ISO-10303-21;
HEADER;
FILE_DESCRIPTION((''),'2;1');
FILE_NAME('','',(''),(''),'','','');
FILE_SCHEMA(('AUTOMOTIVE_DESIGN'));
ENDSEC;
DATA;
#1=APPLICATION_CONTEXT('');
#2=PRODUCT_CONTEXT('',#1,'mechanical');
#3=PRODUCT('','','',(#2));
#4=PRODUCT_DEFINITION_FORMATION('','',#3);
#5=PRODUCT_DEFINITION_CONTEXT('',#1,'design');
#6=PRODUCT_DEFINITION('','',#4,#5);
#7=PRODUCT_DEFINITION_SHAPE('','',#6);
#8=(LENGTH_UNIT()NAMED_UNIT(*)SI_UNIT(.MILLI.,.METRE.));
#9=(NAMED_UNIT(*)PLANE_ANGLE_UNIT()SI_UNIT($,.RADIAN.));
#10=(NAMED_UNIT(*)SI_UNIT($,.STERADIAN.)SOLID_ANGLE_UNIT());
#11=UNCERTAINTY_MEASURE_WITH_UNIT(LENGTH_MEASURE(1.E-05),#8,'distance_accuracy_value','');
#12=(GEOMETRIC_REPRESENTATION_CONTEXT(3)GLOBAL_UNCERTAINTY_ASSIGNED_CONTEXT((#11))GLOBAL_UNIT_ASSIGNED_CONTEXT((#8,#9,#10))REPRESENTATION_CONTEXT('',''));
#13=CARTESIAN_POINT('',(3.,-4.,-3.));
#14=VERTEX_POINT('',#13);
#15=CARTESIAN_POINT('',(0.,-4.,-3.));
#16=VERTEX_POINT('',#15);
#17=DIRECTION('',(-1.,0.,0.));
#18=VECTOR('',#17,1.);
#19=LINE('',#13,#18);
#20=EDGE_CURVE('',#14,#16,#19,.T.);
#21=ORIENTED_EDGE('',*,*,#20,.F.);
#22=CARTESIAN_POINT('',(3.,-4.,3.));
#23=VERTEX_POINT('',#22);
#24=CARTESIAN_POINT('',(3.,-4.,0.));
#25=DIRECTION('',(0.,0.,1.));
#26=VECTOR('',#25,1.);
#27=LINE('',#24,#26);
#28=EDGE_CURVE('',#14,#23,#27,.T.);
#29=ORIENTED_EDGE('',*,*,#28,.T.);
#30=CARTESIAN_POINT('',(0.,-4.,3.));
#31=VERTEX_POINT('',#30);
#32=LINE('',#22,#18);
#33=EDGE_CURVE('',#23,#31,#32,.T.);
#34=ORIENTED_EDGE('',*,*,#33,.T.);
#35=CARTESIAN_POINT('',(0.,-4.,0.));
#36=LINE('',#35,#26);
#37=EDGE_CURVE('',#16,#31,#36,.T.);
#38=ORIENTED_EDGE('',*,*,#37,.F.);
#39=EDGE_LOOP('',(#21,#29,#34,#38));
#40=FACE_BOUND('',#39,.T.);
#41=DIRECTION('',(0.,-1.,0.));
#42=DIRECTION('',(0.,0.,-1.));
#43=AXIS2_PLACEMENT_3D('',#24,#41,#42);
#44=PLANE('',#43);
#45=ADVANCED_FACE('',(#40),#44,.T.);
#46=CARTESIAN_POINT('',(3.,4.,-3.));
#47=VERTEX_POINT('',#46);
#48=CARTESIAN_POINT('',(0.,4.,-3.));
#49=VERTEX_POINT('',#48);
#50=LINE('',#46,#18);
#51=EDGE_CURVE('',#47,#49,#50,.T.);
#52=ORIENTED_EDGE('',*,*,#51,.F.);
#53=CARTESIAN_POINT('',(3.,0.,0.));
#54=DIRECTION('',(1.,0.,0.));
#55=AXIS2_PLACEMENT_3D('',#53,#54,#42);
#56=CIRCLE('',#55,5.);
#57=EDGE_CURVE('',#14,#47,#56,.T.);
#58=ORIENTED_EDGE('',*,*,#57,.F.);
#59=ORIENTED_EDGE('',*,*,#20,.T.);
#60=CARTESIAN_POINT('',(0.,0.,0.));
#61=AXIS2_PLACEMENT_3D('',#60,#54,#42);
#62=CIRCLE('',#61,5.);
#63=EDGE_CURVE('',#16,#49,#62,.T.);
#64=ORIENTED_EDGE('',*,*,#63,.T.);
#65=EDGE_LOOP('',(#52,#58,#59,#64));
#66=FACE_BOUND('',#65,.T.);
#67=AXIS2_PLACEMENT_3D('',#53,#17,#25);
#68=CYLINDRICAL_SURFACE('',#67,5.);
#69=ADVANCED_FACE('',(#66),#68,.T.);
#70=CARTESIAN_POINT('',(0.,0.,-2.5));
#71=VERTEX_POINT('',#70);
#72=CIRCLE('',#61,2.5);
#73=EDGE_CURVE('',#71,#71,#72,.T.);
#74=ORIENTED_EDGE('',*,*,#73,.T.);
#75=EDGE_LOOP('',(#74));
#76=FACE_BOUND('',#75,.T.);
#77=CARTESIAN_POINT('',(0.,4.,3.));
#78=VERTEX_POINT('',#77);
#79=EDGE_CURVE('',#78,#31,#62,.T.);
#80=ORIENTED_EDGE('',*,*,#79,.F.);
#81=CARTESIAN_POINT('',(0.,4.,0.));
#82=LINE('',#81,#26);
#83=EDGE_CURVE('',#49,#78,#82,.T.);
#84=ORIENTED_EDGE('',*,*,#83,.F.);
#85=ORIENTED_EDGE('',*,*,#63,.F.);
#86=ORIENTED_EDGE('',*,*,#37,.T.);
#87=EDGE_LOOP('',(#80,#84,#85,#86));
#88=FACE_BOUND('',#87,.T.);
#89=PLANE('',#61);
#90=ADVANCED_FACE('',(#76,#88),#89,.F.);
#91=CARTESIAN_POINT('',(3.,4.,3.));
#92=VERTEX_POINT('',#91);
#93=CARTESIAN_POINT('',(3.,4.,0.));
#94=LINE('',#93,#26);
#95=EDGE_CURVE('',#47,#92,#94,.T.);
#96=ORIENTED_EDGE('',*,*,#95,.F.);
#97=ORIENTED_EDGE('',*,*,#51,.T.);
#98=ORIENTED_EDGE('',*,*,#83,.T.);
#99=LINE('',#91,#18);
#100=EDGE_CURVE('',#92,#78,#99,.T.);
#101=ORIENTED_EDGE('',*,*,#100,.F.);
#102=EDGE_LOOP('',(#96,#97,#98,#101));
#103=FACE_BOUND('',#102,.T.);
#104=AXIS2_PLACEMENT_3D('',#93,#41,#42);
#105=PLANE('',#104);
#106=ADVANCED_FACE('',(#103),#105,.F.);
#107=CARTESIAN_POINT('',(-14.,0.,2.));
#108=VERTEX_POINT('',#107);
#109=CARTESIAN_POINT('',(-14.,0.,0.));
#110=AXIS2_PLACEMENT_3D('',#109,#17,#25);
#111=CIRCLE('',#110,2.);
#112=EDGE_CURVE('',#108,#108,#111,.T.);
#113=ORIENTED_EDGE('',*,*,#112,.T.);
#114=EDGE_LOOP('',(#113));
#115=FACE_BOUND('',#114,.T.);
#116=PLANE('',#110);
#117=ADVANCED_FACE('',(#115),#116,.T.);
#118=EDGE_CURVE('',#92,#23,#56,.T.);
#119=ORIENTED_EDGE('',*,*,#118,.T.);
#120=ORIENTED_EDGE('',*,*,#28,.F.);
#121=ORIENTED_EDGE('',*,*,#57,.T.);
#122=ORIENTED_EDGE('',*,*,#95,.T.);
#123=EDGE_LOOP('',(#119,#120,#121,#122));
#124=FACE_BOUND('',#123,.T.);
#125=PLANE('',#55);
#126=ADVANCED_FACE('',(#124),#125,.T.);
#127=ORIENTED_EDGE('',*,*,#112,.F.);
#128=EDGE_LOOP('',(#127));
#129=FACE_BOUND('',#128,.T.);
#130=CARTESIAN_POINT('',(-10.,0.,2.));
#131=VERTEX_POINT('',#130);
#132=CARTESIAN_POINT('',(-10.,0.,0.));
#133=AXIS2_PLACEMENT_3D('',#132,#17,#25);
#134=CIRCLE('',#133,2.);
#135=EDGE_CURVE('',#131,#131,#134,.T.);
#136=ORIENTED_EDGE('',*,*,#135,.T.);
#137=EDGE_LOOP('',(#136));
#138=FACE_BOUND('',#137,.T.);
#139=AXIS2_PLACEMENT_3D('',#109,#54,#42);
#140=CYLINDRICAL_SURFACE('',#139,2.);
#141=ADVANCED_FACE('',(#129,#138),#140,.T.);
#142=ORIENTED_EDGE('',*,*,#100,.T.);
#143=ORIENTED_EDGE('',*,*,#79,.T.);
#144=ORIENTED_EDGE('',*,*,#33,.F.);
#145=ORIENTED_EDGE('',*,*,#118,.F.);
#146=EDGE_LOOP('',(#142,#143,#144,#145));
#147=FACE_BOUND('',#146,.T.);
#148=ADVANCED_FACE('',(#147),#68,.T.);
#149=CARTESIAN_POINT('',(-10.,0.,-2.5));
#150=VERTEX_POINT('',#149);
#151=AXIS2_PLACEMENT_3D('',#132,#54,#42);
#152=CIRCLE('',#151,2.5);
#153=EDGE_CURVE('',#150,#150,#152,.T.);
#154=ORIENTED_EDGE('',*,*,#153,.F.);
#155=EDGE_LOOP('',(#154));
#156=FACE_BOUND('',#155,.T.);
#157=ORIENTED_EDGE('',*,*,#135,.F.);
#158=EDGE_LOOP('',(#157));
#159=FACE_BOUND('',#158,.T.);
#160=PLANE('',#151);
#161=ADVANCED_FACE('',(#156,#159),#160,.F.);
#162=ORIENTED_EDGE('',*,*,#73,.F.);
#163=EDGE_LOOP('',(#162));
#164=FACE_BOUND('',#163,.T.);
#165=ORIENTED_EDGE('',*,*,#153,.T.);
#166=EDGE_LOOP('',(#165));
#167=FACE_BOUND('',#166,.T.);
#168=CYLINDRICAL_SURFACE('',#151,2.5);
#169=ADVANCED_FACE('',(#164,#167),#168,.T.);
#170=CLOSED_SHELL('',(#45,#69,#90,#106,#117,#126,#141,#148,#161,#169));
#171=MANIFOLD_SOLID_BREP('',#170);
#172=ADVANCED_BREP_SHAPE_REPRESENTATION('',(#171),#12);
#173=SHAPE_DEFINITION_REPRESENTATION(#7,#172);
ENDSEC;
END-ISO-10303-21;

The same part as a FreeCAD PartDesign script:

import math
import FreeCAD as App
import Part
import Sketcher

V = App.Vector
Q = App.Units.Quantity

doc = App.newDocument("Part")
params = doc.addObject("Spreadsheet::Sheet", "Params")
for row, (alias, value) in enumerate([
    ("sketch1_radius", "5 mm"),
    ("sketch1_height", "6 mm"),
    ("pad1_length", "3 mm"),
    ("sketch2_diameter", "5 mm"),
    ("pad2_length", "10 mm"),
    ("sketch3_diameter", "4 mm"),
    ("pad3_length", "4 mm"),
], start=1):
    params.set(f"A{row}", alias)
    params.set(f"B{row}", "=" + value)
    params.setAlias(f"B{row}", alias)

body = doc.addObject("PartDesign::Body", "Body")

sketch1 = body.newObject("Sketcher::SketchObject", "Sketch")
sketch1.AttachmentSupport = (doc.getObject("YZ_Plane"), [""])
sketch1.MapMode = "FlatFace"
sketch1.addGeometry(Part.LineSegment(V(-4, 3, 0), V(-4, -3, 0)), False)
sketch1.addGeometry(Part.ArcOfCircle(Part.Circle(V(0, 0, 0), V(0, 0, 1), 5), math.radians(-143), math.radians(-37)), False)
sketch1.addGeometry(Part.LineSegment(V(4, -3, 0), V(4, 3, 0)), False)
sketch1.addGeometry(Part.ArcOfCircle(Part.Circle(V(0, 0, 0), V(0, 0, 1), 5), math.radians(37), math.radians(143)), False)
sketch1.addConstraint(Sketcher.Constraint("Coincident", 0, 2, 1, 1))
sketch1.addConstraint(Sketcher.Constraint("Coincident", 1, 2, 2, 1))
sketch1.addConstraint(Sketcher.Constraint("Coincident", 2, 2, 3, 1))
sketch1.addConstraint(Sketcher.Constraint("Coincident", 3, 2, 0, 1))
sketch1.addConstraint(Sketcher.Constraint("Vertical", 0))
sketch1.addConstraint(Sketcher.Constraint("Vertical", 2))
sketch1.addConstraint(Sketcher.Constraint("Coincident", 1, 3, -1, 1))
sketch1.addConstraint(Sketcher.Constraint("Coincident", 3, 3, -1, 1))
sketch1.addConstraint(Sketcher.Constraint("Equal", 1, 3))
sketch1.addConstraint(Sketcher.Constraint("Horizontal", 0, 2, 1, 2))
sketch1.addConstraint(Sketcher.Constraint("Radius", 1, Q("5 mm")))
sketch1.addConstraint(Sketcher.Constraint("DistanceY", 0, 2, 0, 1, Q("6 mm")))
sketch1.setExpression("Constraints[10]", "Params.sketch1_radius")
sketch1.setExpression("Constraints[11]", "Params.sketch1_height")
pad1 = body.newObject("PartDesign::Pad", "Pad")
pad1.Profile = sketch1
pad1.setExpression("Length", "Params.pad1_length")

sketch2 = body.newObject("Sketcher::SketchObject", "Sketch001")
sketch2.AttachmentSupport = (doc.getObject("YZ_Plane"), [""])
sketch2.MapMode = "FlatFace"
sketch2.addGeometry(Part.Circle(V(0, 0, 0), V(0, 0, 1), 2.5), False)
sketch2.addConstraint(Sketcher.Constraint("Coincident", 0, 3, -1, 1))
sketch2.addConstraint(Sketcher.Constraint("Diameter", 0, Q("5 mm")))
sketch2.setExpression("Constraints[1]", "Params.sketch2_diameter")
pad2 = body.newObject("PartDesign::Pad", "Pad001")
pad2.Profile = sketch2
pad2.setExpression("Length", "Params.pad2_length")
pad2.Reversed = True

sketch3 = body.newObject("Sketcher::SketchObject", "Sketch002")
sketch3.AttachmentSupport = (doc.getObject("YZ_Plane"), [""])
sketch3.MapMode = "FlatFace"
sketch3.AttachmentOffset = App.Placement(V(0, 0, -10), App.Rotation())
sketch3.addGeometry(Part.Circle(V(0, 0, 0), V(0, 0, 1), 2), False)
sketch3.addConstraint(Sketcher.Constraint("Coincident", 0, 3, -1, 1))
sketch3.addConstraint(Sketcher.Constraint("Diameter", 0, Q("4 mm")))
sketch3.setExpression("Constraints[1]", "Params.sketch3_diameter")
pad3 = body.newObject("PartDesign::Pad", "Pad002")
pad3.Profile = sketch3
pad3.setExpression("Length", "Params.pad3_length")
pad3.Reversed = True

doc.recompute()
